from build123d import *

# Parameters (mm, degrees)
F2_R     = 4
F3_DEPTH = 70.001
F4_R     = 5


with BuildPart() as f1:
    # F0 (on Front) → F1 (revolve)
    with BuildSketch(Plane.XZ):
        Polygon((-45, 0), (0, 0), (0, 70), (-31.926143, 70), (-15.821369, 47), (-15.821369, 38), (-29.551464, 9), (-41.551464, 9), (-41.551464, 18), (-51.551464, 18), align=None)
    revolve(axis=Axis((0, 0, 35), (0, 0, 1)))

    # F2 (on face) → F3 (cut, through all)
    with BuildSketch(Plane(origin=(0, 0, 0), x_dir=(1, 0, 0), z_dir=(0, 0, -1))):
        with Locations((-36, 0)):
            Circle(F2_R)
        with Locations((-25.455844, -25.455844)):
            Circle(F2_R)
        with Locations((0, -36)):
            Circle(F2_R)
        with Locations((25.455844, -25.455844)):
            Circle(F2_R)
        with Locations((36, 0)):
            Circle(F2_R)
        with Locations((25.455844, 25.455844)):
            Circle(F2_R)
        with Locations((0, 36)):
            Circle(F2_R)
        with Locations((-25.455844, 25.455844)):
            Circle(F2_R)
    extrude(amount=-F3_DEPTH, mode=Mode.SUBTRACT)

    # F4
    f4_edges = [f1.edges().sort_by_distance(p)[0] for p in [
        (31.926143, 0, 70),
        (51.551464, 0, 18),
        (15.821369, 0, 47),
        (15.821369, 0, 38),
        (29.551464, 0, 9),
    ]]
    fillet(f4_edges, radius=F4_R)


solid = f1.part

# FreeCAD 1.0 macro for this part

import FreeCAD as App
import Part
import Sketcher
Q = App.Units.Quantity


def edges_at(feature, points):
    """Names of the edges that pass closest to the given points."""
    edges = feature.Shape.Edges
    near = lambda p: min(range(len(edges)), key=lambda i: edges[i].distToShape(Part.Vertex(*p))[0])
    return sorted({f"Edge{near(p) + 1}" for p in points})

doc = App.newDocument("Part")
params = doc.addObject("Spreadsheet::Sheet", "Params")
for row, (alias, value) in enumerate([
    ("sketch1_width", "45 mm"),
    ("sketch1_width2", "12 mm"),
    ("sketch1_width3", "10 mm"),
    ("sketch1_height", "70 mm"),
    ("sketch1_height2", "9 mm"),
    ("revolution_angle", "360 deg"),
    ("sketch2_diameter", "8 mm"),
    ("fillet_radius", "5 mm"),
], start=1):
    params.set(f"A{row}", alias)
    params.set(f"B{row}", "=" + value)
    params.setAlias(f"B{row}", alias)

body = doc.addObject("PartDesign::Body", "Body")

# Sketch on XZ plane
sketch1 = doc.addObject("Sketcher::SketchObject", "Sketch")
body.addObject(sketch1)
sketch1.AttachmentSupport = (doc.XZ_Plane, [""])
sketch1.MapMode = "FlatFace"
sketch1.addGeometry([
    Part.LineSegment(App.Vector(-45, 0, 0), App.Vector(0, 0, 0)),  # 0
    Part.LineSegment(App.Vector(0, 0, 0), App.Vector(0, 70, 0)),  # 1
    Part.LineSegment(App.Vector(0, 70, 0), App.Vector(-32, 70, 0)),  # 2
    Part.LineSegment(App.Vector(-32, 70, 0), App.Vector(-16, 47, 0)),  # 3
    Part.LineSegment(App.Vector(-16, 47, 0), App.Vector(-16, 38, 0)),  # 4
    Part.LineSegment(App.Vector(-16, 38, 0), App.Vector(-30, 9, 0)),  # 5
    Part.LineSegment(App.Vector(-30, 9, 0), App.Vector(-42, 9, 0)),  # 6
    Part.LineSegment(App.Vector(-42, 9, 0), App.Vector(-42, 18, 0)),  # 7
    Part.LineSegment(App.Vector(-42, 18, 0), App.Vector(-52, 18, 0)),  # 8
    Part.LineSegment(App.Vector(-52, 18, 0), App.Vector(-45, 0, 0)),  # 9
], False)
sketch1.addConstraint([
    Sketcher.Constraint("Coincident", 0, 2, 1, 1),
    Sketcher.Constraint("Coincident", 1, 2, 2, 1),
    Sketcher.Constraint("Coincident", 2, 2, 3, 1),
    Sketcher.Constraint("Coincident", 3, 2, 4, 1),
    Sketcher.Constraint("Coincident", 4, 2, 5, 1),
    Sketcher.Constraint("Coincident", 5, 2, 6, 1),
    Sketcher.Constraint("Coincident", 6, 2, 7, 1),
    Sketcher.Constraint("Coincident", 7, 2, 8, 1),
    Sketcher.Constraint("Coincident", 8, 2, 9, 1),
    Sketcher.Constraint("Coincident", 9, 2, 0, 1),
    Sketcher.Constraint("Horizontal", 0),
    Sketcher.Constraint("Vertical", 1),
    Sketcher.Constraint("Horizontal", 2),
    Sketcher.Constraint("Vertical", 4),
    Sketcher.Constraint("Horizontal", 6),
    Sketcher.Constraint("Vertical", 7),
    Sketcher.Constraint("Horizontal", 8),
    Sketcher.Constraint("Coincident", 0, 2, -1, 1),
    Sketcher.Constraint("Equal", 4, 7),
    Sketcher.Constraint("DistanceX", 0, 1, 0, 2, 45.0),
    Sketcher.Constraint("DistanceX", 6, 2, 6, 1, 12.0),
    Sketcher.Constraint("DistanceX", 8, 2, 8, 1, 10.0),
    Sketcher.Constraint("DistanceY", 1, 1, 1, 2, 70.0),
    Sketcher.Constraint("DistanceY", 4, 2, 4, 1, 9.0),
    Sketcher.Constraint("Angle", 3, Q("-54.999999 deg")),
    Sketcher.Constraint("Angle", 9, Q("-70.000001 deg")),
    Sketcher.Constraint("DistanceY", -1, 1, 3, 2, 47.0),
    Sketcher.Constraint("DistanceY", -1, 1, 5, 2, 9.0),
    Sketcher.Constraint("DistanceX", 2, 2, 2, 1, 31.926143),
])
sketch1.setExpression("Constraints[19]", "Params.sketch1_width")
sketch1.setExpression("Constraints[20]", "Params.sketch1_width2")
sketch1.setExpression("Constraints[21]", "Params.sketch1_width3")
sketch1.setExpression("Constraints[22]", "Params.sketch1_height")
sketch1.setExpression("Constraints[23]", "Params.sketch1_height2")
revolution = doc.addObject("PartDesign::Revolution", "Revolution")
body.addObject(revolution)
revolution.Profile = sketch1
revolution.ReferenceAxis = (sketch1, ["V_Axis"])
revolution.setExpression("Angle", "Params.revolution_angle")

# Sketch on XY plane
sketch2 = doc.addObject("Sketcher::SketchObject", "Sketch001")
body.addObject(sketch2)
sketch2.AttachmentSupport = (doc.XY_Plane, [""])
sketch2.MapMode = "FlatFace"
sketch2.addGeometry([
    Part.Circle(App.Vector(-36, 0, 0), App.Vector(0, 0, 1), 4),  # 0
    Part.Circle(App.Vector(-25.5, 25.5, 0), App.Vector(0, 0, 1), 4),  # 1
    Part.Circle(App.Vector(0, 36, 0), App.Vector(0, 0, 1), 4),  # 2
    Part.Circle(App.Vector(25.5, 25.5, 0), App.Vector(0, 0, 1), 4),  # 3
    Part.Circle(App.Vector(36, 0, 0), App.Vector(0, 0, 1), 4),  # 4
    Part.Circle(App.Vector(25.5, -25.5, 0), App.Vector(0, 0, 1), 4),  # 5
    Part.Circle(App.Vector(0, -36, 0), App.Vector(0, 0, 1), 4),  # 6
    Part.Circle(App.Vector(-25.5, -25.5, 0), App.Vector(0, 0, 1), 4),  # 7
], False)
sketch2.addConstraint([
    Sketcher.Constraint("Equal", 0, 1),
    Sketcher.Constraint("Equal", 1, 2),
    Sketcher.Constraint("Equal", 2, 3),
    Sketcher.Constraint("Equal", 3, 4),
    Sketcher.Constraint("Equal", 4, 5),
    Sketcher.Constraint("Equal", 5, 6),
    Sketcher.Constraint("Equal", 6, 7),
    Sketcher.Constraint("Symmetric", 0, 3, 4, 3, -1, 1),
    Sketcher.Constraint("Symmetric", 1, 3, 5, 3, -1, 1),
    Sketcher.Constraint("Symmetric", 2, 3, 6, 3, -1, 1),
    Sketcher.Constraint("Symmetric", 3, 3, 7, 3, -1, 1),
    Sketcher.Constraint("Symmetric", 1, 3, 3, 3, -2),
    Sketcher.Constraint("PointOnObject", 0, 3, -1),
    Sketcher.Constraint("PointOnObject", 2, 3, -2),
    Sketcher.Constraint("Diameter", 0, 8.0),
    Sketcher.Constraint("DistanceX", 0, 3, -1, 1, 36.0),
    Sketcher.Constraint("DistanceY", -1, 1, 2, 3, 36.0),
    Sketcher.Constraint("DistanceX", 1, 3, -1, 1, 25.455844),
    Sketcher.Constraint("DistanceY", -1, 1, 1, 3, 25.455844),
])
sketch2.setExpression("Constraints[14]", "Params.sketch2_diameter")
pocket1 = doc.addObject("PartDesign::Pocket", "Pocket")
body.addObject(pocket1)
pocket1.Profile = sketch2
pocket1.Type = "ThroughAll"
pocket1.Reversed = True
doc.recompute()

fillet = doc.addObject("PartDesign::Fillet", "Fillet")
body.addObject(fillet)
fillet.Base = (pocket1, edges_at(pocket1, [
    (31.926, 0, 70),
    (51.551, 0, 18),
    (15.821, 0, 47),
    (15.821, 0, 38),
    (29.551, 0, 9),
]))
fillet.setExpression("Radius", "Params.fillet_radius")

doc.recompute()
